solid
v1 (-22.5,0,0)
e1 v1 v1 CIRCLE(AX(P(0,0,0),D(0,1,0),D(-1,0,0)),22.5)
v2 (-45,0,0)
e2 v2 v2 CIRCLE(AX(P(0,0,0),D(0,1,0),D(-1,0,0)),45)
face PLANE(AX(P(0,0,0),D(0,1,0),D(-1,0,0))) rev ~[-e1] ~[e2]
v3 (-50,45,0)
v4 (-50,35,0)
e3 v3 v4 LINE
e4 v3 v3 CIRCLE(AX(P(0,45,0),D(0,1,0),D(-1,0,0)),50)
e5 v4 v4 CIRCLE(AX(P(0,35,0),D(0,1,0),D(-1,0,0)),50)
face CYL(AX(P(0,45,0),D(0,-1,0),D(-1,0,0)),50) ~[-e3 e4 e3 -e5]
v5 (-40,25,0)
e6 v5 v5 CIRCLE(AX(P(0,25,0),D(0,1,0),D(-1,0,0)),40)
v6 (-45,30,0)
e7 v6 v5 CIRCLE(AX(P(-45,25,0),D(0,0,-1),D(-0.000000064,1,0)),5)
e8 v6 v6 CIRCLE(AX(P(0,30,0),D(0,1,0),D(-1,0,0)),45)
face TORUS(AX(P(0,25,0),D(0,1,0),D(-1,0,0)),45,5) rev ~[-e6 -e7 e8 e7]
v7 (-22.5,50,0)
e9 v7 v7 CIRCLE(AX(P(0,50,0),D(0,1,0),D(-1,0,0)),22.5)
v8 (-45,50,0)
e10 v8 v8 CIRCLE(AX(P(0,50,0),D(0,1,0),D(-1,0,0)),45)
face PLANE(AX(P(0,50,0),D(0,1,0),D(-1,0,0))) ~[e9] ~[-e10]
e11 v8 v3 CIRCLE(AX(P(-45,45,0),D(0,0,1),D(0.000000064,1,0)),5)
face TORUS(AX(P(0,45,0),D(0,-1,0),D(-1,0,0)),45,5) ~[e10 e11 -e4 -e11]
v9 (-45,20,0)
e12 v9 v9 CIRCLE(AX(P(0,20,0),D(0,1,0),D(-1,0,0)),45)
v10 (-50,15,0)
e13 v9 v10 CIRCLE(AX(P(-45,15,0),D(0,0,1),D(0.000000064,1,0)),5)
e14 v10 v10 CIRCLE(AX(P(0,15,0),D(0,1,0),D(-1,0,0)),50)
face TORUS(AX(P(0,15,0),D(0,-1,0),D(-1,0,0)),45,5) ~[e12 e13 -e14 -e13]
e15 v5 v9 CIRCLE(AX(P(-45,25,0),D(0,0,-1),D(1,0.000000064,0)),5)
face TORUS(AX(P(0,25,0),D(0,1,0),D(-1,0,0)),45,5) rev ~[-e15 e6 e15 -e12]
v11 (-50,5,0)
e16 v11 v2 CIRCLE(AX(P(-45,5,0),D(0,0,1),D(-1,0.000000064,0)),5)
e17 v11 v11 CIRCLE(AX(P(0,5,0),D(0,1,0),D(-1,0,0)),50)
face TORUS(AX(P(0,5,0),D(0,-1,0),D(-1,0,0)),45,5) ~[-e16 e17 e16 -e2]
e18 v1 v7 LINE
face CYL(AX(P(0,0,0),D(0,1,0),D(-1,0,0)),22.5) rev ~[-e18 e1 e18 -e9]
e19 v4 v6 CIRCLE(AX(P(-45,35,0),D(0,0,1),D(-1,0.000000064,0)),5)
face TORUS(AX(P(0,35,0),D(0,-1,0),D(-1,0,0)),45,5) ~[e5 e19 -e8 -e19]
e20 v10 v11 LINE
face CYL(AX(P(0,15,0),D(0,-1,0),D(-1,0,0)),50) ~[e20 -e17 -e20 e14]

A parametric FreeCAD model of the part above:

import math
import FreeCAD as App
import Part
import Sketcher

V = App.Vector
Q = App.Units.Quantity

doc = App.newDocument("Part")
params = doc.addObject("Spreadsheet::Sheet", "Params")
for row, (alias, value) in enumerate([
    ("sketch1_radius", "5 mm"),
    ("sketch1_height", "50 mm"),
    ("sketch1_width", "22.5 mm"),
    ("revolution_angle", "360 deg"),
], start=1):
    params.set(f"A{row}", alias)
    params.set(f"B{row}", "=" + value)
    params.setAlias(f"B{row}", alias)

body = doc.addObject("PartDesign::Body", "Body")

# Sketch on XY plane
sketch1 = body.newObject("Sketcher::SketchObject", "Sketch")
sketch1.AttachmentSupport = (doc.getObject("XY_Plane"), [""])
sketch1.MapMode = "FlatFace"
sketch1.addGeometry([
    Part.LineSegment(V(-45, 0, 0), V(-22.5, 0, 0)),  # 0
    Part.LineSegment(V(-22.5, 0, 0), V(-22.5, 50, 0)),  # 1
    Part.LineSegment(V(-22.5, 50, 0), V(-45, 50, 0)),  # 2
    Part.ArcOfCircle(Part.Circle(V(-45, 45, 0), V(0, 0, 1), 5), math.radians(89.999996), math.radians(180.000004)),  # 3
    Part.LineSegment(V(-50, 45, 0), V(-50, 35, 0)),  # 4
    Part.ArcOfCircle(Part.Circle(V(-45, 35, 0), V(0, 0, 1), 5), math.radians(179.999996), math.radians(270.000004)),  # 5
    Part.ArcOfCircle(Part.Circle(V(-45, 25, 0), V(0, 0, 1), 5), math.radians(-0.000004), math.radians(90.000004)),  # 6
    Part.ArcOfCircle(Part.Circle(V(-45, 25, 0), V(0, 0, 1), 5), math.radians(-90.000004), math.radians(0.000004)),  # 7
    Part.ArcOfCircle(Part.Circle(V(-45, 15, 0), V(0, 0, 1), 5), math.radians(89.999996), math.radians(180.000004)),  # 8
    Part.LineSegment(V(-50, 15, 0), V(-50, 5, 0)),  # 9
    Part.ArcOfCircle(Part.Circle(V(-45, 5, 0), V(0, 0, 1), 5), math.radians(179.999996), math.radians(270.000004)),  # 10
], False)
sketch1.addConstraint([
    Sketcher.Constraint("Coincident", 0, 2, 1, 1),
    Sketcher.Constraint("Coincident", 1, 2, 2, 1),
    Sketcher.Constraint("Tangent", 2, 2, 3, 1),
    Sketcher.Constraint("Tangent", 3, 2, 4, 1),
    Sketcher.Constraint("Tangent", 4, 2, 5, 1),
    Sketcher.Constraint("Tangent", 5, 2, 6, 2),
    Sketcher.Constraint("Tangent", 6, 1, 7, 2),
    Sketcher.Constraint("Tangent", 7, 1, 8, 1),
    Sketcher.Constraint("Tangent", 8, 2, 9, 1),
    Sketcher.Constraint("Tangent", 9, 2, 10, 1),
    Sketcher.Constraint("Tangent", 10, 2, 0, 1),
    Sketcher.Constraint("Horizontal", 0),
    Sketcher.Constraint("Vertical", 1),
    Sketcher.Constraint("Horizontal", 2),
    Sketcher.Constraint("Vertical", 4),
    Sketcher.Constraint("Vertical", 9),
    Sketcher.Constraint("Equal", 3, 5),
    Sketcher.Constraint("Equal", 5, 6),
    Sketcher.Constraint("Equal", 6, 7),
    Sketcher.Constraint("Equal", 7, 8),
    Sketcher.Constraint("Equal", 8, 10),
    Sketcher.Constraint("PointOnObject", 0, 2, -1),
    Sketcher.Constraint("Horizontal", 7, 3, 6, 1),
    Sketcher.Constraint("Vertical", 5, 3, 6, 3),
    Sketcher.Constraint("Vertical", 7, 3, 8, 3),
    Sketcher.Constraint("Equal", 4, 9),
    Sketcher.Constraint("Radius", 3, Q("5 mm")),
    Sketcher.Constraint("DistanceY", 1, 1, 1, 2, Q("50 mm")),
    Sketcher.Constraint("DistanceX", 0, 1, 0, 2, Q("22.5 mm")),
    Sketcher.Constraint("DistanceX", 3, 3, -1, 1, Q("45 mm")),
])
sketch1.setExpression("Constraints[26]", "Params.sketch1_radius")
sketch1.setExpression("Constraints[27]", "Params.sketch1_height")
sketch1.setExpression("Constraints[28]", "Params.sketch1_width")
revolution = body.newObject("PartDesign::Revolution", "Revolution")
revolution.Profile = sketch1
revolution.ReferenceAxis = (sketch1, ["V_Axis"])
revolution.setExpression("Angle", "Params.revolution_angle")

doc.recompute()
